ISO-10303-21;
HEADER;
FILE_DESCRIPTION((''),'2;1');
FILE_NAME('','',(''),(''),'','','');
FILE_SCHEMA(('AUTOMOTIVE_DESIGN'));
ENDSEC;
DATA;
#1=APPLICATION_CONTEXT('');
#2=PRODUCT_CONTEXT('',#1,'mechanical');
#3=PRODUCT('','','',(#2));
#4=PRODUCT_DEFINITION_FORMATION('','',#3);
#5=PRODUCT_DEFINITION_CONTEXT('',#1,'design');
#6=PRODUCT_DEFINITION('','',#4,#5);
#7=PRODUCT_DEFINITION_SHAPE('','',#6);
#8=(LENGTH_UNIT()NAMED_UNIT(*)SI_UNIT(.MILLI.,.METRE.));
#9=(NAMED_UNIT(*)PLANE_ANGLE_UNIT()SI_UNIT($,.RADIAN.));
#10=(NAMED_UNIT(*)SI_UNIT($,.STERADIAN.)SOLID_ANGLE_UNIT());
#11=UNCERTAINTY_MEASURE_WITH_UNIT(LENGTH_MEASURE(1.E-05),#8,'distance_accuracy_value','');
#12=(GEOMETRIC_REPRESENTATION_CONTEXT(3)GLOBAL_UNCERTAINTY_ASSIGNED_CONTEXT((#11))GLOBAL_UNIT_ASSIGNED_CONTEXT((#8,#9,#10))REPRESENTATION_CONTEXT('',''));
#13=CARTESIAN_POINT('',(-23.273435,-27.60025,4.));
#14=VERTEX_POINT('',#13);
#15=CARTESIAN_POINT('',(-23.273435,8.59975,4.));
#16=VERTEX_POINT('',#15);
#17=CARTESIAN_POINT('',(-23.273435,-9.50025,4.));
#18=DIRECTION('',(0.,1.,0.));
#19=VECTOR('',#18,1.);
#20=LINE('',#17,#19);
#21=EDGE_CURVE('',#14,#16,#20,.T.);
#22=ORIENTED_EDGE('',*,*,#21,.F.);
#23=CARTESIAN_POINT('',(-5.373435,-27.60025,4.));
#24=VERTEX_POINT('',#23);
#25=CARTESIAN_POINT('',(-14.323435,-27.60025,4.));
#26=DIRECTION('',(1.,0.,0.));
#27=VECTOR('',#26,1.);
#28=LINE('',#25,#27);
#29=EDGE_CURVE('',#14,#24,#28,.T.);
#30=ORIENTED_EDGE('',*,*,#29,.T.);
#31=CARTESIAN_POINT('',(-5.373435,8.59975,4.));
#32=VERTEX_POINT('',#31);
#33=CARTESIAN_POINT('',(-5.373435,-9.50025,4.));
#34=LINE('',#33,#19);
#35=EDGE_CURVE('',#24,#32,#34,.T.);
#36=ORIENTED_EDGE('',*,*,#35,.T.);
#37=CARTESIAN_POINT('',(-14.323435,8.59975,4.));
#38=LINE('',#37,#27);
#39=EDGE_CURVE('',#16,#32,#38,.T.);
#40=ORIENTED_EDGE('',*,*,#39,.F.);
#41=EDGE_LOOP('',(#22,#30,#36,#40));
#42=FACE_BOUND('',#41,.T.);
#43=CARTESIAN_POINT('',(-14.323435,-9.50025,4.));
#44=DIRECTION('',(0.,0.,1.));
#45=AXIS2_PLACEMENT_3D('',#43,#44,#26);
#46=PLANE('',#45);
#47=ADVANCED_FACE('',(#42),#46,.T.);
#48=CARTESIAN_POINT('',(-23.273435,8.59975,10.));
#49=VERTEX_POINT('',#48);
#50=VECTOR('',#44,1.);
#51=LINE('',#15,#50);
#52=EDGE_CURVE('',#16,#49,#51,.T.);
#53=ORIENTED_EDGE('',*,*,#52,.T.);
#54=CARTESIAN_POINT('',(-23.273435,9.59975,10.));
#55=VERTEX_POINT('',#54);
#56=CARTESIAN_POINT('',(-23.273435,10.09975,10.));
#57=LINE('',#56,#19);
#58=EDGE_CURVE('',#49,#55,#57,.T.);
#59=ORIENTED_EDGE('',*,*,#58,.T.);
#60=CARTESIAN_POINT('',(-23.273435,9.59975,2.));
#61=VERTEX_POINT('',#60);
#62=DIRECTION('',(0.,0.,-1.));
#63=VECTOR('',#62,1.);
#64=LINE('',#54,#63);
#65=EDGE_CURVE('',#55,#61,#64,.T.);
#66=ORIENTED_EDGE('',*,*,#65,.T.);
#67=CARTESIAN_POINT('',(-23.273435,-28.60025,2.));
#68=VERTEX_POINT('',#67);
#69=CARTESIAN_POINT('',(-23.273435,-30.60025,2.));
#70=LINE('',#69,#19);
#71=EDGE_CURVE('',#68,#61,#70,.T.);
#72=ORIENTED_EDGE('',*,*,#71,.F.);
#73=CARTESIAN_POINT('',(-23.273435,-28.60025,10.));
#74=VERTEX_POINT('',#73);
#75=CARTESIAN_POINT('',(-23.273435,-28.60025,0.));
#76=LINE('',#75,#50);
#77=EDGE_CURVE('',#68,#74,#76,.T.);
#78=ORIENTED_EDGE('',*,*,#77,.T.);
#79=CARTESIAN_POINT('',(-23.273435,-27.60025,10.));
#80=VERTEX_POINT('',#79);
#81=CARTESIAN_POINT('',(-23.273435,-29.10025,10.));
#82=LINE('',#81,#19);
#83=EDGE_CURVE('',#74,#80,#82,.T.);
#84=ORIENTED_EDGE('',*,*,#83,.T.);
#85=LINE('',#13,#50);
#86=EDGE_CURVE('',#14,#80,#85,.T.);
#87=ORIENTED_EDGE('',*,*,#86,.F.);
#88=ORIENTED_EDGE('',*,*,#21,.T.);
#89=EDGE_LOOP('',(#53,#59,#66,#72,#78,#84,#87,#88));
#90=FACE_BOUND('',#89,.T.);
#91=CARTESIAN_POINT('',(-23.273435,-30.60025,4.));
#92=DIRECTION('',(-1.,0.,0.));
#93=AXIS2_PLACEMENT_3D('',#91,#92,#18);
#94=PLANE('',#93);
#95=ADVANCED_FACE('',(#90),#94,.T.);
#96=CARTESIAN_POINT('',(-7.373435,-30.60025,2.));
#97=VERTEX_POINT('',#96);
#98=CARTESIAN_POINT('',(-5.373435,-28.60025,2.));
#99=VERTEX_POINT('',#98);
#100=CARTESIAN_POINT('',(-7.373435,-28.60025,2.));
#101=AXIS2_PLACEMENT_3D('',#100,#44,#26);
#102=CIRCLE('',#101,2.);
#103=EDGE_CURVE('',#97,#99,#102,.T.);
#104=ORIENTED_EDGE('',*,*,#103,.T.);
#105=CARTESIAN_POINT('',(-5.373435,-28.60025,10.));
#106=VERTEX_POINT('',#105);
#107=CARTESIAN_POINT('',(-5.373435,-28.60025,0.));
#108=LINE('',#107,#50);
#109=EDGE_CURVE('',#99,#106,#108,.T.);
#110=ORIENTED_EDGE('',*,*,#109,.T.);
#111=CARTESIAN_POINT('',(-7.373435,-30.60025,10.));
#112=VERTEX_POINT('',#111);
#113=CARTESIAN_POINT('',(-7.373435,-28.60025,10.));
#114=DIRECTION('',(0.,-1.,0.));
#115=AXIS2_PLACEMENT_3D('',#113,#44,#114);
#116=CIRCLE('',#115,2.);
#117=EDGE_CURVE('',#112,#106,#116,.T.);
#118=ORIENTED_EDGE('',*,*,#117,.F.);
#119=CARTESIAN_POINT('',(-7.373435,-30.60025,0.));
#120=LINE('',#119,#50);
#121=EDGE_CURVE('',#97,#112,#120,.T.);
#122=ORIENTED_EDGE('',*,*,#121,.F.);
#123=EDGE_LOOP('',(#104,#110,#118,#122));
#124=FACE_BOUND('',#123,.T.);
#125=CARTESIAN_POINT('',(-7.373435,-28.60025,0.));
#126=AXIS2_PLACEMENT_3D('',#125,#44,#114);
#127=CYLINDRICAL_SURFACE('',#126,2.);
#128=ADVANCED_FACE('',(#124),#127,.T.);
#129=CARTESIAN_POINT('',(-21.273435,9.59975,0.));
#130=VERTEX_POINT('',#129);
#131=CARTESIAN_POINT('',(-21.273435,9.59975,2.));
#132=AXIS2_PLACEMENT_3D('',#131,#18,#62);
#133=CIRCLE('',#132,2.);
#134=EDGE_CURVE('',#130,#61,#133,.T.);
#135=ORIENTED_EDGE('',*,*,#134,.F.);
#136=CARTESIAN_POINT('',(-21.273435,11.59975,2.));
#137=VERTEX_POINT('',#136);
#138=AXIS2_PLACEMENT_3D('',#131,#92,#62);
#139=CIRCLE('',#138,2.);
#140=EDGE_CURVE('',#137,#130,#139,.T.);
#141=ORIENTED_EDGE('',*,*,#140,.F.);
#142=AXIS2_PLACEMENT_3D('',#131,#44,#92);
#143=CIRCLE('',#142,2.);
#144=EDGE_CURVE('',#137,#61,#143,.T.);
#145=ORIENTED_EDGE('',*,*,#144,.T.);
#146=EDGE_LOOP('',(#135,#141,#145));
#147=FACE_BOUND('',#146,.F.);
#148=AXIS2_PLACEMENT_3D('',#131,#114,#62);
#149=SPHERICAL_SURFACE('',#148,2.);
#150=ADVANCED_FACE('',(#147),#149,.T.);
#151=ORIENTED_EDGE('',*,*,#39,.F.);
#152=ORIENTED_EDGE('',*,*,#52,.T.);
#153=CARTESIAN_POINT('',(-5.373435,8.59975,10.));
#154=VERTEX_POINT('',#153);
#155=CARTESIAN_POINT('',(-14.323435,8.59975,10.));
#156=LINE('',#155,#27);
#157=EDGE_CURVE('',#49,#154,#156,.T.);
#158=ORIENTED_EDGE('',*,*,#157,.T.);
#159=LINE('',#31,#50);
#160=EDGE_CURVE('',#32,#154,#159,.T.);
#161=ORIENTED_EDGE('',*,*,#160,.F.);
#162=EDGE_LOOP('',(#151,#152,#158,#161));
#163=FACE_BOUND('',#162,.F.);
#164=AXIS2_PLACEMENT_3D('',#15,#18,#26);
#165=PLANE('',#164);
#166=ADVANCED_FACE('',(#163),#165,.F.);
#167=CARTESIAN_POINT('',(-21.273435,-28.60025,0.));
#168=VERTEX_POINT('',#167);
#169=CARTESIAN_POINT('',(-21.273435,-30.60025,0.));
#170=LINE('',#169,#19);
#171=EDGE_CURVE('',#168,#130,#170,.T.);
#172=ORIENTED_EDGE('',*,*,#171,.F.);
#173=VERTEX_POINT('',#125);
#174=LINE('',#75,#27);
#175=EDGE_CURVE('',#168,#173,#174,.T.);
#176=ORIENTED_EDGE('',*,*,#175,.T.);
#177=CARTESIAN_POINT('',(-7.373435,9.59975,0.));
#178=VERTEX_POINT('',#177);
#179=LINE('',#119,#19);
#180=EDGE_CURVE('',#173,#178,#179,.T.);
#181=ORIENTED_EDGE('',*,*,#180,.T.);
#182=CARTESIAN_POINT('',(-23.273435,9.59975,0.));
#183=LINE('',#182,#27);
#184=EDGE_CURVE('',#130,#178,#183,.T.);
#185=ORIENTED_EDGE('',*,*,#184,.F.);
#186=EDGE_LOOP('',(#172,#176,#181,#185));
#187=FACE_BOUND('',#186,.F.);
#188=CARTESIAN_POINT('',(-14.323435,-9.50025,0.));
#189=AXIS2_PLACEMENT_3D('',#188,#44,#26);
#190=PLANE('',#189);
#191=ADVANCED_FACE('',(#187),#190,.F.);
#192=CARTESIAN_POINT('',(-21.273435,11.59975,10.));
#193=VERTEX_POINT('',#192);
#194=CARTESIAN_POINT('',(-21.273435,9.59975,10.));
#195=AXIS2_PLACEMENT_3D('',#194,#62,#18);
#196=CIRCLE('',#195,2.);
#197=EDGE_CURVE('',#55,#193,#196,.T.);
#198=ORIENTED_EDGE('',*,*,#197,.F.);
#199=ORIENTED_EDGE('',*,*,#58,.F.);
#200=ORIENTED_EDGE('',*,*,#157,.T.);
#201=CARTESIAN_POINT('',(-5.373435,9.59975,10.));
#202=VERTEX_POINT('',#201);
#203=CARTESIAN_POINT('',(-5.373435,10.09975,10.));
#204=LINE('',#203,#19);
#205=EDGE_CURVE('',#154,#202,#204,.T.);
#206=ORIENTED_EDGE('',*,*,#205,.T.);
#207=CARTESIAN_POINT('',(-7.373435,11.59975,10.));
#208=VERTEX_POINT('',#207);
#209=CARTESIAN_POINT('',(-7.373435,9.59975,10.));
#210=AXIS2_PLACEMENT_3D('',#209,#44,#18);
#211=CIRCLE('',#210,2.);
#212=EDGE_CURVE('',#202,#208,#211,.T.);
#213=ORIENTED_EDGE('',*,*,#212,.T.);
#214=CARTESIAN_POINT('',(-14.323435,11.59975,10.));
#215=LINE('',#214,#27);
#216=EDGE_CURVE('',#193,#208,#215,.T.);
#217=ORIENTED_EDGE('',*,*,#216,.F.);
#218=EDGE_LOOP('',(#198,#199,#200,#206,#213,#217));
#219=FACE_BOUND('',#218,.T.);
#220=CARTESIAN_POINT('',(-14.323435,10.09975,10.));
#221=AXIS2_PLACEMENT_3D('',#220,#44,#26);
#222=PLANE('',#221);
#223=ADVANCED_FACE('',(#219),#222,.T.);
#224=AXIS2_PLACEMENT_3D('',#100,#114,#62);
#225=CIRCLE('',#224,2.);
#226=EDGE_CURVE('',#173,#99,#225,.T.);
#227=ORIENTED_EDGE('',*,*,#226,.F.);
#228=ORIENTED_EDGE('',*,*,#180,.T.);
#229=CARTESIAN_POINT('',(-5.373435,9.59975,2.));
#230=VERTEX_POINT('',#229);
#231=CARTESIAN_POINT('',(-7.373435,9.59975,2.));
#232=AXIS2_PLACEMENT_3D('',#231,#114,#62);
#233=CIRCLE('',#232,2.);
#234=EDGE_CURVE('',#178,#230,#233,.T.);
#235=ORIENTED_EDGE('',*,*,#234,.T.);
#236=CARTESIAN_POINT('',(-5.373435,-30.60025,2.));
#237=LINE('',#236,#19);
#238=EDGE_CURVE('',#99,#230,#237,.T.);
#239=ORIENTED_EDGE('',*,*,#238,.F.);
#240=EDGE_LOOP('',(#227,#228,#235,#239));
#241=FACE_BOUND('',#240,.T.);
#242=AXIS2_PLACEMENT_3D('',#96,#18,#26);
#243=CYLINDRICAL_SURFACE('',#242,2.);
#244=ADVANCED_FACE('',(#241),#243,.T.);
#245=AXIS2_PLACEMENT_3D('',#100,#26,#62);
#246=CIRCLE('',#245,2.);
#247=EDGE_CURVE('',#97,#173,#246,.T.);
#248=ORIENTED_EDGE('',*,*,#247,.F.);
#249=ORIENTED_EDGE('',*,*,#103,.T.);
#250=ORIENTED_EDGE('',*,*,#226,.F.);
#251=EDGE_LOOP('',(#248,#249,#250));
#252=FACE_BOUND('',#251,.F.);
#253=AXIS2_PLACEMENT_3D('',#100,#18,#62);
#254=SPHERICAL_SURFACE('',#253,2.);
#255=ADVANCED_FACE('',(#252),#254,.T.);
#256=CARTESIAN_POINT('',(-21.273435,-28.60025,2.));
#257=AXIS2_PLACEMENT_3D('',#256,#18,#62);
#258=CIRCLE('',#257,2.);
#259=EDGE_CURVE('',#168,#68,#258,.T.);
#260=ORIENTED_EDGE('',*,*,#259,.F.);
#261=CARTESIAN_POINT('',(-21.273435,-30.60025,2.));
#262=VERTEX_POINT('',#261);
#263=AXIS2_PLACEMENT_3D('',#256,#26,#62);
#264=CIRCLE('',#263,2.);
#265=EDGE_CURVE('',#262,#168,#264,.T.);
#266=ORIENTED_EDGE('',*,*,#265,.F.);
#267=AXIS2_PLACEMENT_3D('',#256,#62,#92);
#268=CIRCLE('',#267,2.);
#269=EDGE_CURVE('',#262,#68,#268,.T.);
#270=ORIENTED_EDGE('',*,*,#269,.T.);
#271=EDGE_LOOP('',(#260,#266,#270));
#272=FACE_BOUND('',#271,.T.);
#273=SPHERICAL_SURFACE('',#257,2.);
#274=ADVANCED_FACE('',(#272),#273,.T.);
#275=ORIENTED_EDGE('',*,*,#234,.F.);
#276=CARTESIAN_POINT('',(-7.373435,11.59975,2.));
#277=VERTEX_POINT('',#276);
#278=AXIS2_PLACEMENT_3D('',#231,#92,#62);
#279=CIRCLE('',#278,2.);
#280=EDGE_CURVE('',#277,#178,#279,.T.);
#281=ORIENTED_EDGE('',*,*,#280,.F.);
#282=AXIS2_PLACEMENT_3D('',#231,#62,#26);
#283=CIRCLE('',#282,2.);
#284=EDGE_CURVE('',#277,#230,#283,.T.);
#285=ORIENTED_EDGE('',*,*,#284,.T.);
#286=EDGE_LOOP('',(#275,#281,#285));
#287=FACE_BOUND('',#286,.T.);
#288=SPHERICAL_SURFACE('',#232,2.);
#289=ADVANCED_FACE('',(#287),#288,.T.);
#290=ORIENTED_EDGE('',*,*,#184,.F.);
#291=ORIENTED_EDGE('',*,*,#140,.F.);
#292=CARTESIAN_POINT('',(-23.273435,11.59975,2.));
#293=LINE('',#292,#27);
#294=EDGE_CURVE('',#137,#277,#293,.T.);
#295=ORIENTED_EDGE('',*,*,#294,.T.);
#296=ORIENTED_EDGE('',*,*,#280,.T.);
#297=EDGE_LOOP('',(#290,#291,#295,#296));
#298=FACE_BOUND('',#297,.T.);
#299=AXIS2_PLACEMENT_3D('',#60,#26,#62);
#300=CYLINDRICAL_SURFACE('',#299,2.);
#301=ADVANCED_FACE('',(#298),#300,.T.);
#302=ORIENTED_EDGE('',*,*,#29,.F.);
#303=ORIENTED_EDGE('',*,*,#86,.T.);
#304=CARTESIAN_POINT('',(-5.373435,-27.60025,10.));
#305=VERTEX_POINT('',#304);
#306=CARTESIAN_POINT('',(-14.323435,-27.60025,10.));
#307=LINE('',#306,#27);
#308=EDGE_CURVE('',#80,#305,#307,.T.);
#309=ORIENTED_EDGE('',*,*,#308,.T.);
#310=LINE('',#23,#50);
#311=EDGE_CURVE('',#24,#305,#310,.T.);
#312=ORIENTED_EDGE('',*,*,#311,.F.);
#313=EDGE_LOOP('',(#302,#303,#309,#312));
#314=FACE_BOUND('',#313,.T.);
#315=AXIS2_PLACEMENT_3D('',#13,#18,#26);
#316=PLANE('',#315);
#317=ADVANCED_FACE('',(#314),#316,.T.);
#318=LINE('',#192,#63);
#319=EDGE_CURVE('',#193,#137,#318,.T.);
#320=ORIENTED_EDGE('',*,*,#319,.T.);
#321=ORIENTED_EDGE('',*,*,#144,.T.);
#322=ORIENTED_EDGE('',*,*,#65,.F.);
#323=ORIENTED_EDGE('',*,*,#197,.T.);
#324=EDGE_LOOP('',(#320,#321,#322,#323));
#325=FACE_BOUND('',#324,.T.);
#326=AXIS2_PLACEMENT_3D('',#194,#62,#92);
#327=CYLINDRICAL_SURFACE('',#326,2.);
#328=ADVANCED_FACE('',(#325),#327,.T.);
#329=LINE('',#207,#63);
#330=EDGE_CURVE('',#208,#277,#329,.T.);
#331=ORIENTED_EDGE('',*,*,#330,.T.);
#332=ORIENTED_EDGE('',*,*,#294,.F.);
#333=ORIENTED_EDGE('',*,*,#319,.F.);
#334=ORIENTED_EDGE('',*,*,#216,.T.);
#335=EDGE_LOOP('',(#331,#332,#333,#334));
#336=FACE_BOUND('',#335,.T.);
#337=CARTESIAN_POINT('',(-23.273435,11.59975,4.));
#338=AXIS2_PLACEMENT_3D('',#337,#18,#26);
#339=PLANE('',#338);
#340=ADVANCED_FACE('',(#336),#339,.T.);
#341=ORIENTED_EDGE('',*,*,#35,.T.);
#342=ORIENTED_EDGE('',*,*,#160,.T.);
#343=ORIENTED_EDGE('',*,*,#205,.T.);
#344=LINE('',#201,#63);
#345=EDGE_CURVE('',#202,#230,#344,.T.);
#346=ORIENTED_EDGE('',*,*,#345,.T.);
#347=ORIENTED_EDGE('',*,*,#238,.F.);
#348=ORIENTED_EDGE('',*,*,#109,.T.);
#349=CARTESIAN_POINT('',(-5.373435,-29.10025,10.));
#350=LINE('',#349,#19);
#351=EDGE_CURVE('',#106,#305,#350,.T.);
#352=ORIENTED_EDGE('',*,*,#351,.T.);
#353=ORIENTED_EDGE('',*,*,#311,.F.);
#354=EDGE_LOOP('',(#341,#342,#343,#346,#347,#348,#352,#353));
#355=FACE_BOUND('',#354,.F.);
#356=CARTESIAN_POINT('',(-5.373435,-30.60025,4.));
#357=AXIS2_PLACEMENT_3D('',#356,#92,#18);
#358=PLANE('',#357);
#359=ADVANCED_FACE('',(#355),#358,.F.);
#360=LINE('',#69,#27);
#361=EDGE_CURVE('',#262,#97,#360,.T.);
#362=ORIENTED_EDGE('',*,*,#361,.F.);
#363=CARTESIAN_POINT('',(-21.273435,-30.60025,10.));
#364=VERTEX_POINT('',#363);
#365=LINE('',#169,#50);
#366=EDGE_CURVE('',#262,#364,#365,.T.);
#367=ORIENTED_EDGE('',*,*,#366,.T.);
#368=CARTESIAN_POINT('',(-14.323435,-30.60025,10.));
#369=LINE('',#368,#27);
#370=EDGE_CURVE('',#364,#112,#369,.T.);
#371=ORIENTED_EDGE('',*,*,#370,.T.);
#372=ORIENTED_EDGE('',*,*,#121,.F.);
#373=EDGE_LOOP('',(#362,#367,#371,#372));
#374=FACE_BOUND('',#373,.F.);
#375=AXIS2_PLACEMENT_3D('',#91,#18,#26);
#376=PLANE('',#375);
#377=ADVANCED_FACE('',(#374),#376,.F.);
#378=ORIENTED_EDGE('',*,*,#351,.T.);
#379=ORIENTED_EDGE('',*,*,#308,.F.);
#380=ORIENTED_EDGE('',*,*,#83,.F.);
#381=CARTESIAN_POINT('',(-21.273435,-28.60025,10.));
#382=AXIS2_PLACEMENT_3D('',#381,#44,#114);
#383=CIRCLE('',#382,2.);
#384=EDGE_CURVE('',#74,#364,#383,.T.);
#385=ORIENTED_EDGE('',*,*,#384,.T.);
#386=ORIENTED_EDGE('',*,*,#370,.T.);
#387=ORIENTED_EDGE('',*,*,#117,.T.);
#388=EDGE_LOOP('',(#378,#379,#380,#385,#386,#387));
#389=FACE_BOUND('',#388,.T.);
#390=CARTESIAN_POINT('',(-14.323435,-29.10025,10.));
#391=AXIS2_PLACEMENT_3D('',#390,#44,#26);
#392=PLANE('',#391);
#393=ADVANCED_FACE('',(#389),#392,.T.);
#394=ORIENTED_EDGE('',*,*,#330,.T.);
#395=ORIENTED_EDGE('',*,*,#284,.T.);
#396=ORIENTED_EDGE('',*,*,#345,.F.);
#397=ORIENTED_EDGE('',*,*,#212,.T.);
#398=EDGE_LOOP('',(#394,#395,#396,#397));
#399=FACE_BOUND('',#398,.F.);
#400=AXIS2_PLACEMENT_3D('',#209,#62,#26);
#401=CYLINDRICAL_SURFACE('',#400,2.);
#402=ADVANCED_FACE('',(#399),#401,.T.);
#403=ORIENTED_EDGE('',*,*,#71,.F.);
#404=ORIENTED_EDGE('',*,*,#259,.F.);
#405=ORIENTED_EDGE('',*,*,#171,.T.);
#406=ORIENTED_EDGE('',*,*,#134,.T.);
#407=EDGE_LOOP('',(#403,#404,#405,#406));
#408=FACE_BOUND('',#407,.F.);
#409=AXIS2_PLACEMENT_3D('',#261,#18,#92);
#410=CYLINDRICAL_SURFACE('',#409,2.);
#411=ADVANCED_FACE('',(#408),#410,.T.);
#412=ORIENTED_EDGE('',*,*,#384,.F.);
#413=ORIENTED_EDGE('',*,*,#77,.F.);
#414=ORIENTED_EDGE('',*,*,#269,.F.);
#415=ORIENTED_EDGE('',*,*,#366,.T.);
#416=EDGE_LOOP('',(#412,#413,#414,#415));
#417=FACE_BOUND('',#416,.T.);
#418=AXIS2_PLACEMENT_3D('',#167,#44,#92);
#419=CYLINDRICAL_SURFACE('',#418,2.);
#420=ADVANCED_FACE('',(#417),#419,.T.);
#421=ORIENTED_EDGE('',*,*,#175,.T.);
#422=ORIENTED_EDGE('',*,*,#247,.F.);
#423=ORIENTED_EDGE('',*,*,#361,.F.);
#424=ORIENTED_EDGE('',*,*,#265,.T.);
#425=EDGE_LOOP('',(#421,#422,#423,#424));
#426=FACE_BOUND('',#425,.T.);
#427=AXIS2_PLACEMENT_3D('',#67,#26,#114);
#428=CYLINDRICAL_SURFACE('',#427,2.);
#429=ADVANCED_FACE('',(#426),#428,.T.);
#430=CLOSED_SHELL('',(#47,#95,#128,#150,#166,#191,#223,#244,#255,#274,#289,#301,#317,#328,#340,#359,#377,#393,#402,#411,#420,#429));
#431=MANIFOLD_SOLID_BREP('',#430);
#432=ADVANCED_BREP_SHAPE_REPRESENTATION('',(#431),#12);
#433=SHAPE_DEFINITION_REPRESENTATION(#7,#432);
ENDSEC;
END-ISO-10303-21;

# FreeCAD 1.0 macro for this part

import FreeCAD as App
import Part
import Sketcher
Q = App.Units.Quantity


def edges_at(feature, points):
    """Names of the edges that pass closest to the given points."""
    edges = feature.Shape.Edges
    near = lambda p: min(range(len(edges)), key=lambda i: edges[i].distToShape(Part.Vertex(*p))[0])
    return sorted({f"Edge{near(p) + 1}" for p in points})


def add_polygon(sketch, points):
    """Adds a closed chain of lines whose ends are joined by coincident constraints."""
    first, n = sketch.GeometryCount, len(points)
    for a, b in zip(points, points[1:] + points[:1]):
        sketch.addGeometry(Part.LineSegment(App.Vector(*a, 0), App.Vector(*b, 0)), False)
    for i in range(n):
        sketch.addConstraint(Sketcher.Constraint("Coincident", first + i, 2, first + (i + 1) % n, 1))

doc = App.newDocument("Part")
body = doc.addObject("PartDesign::Body", "Body")

# Sketch on XY plane
sketch1 = doc.addObject("Sketcher::SketchObject", "Sketch")
body.addObject(sketch1)
sketch1.AttachmentSupport = (doc.XY_Plane, [""])
sketch1.MapMode = "FlatFace"
add_polygon(sketch1, [(-23.273435, 11.59975), (-23.273435, -30.60025), (-5.373435, -30.60025), (-5.373435, 11.59975)])  # lines 0-3
sketch1.addConstraint(Sketcher.Constraint("Vertical", 0))
sketch1.addConstraint(Sketcher.Constraint("Horizontal", 1))
sketch1.addConstraint(Sketcher.Constraint("Vertical", 2))
sketch1.addConstraint(Sketcher.Constraint("Horizontal", 3))
sketch1.addConstraint(Sketcher.Constraint("DistanceX", 1, 1, 1, 2, Q("17.9 mm")))
sketch1.addConstraint(Sketcher.Constraint("DistanceY", 0, 2, 0, 1, Q("42.2 mm")))
sketch1.addConstraint(Sketcher.Constraint("DistanceY", 0, 2, -1, 1, Q("30.60025 mm")))
sketch1.addConstraint(Sketcher.Constraint("DistanceX", 0, 2, -1, 1, Q("23.273435 mm")))
pad1 = doc.addObject("PartDesign::Pad", "Pad")
body.addObject(pad1)
pad1.Profile = sketch1
pad1.Length = 4

# Sketch on XY plane
sketch2 = doc.addObject("Sketcher::SketchObject", "Sketch001")
body.addObject(sketch2)
sketch2.AttachmentSupport = (doc.XY_Plane, [""])
sketch2.MapMode = "FlatFace"
sketch2.AttachmentOffset = App.Placement(App.Vector(0, 0, 4), App.Rotation())
add_polygon(sketch2, [(-23.273435, 11.59975), (-23.273435, 8.59975), (-5.373435, 8.59975), (-5.373435, 11.59975)])  # lines 0-3
sketch2.addConstraint(Sketcher.Constraint("Vertical", 0))
sketch2.addConstraint(Sketcher.Constraint("Horizontal", 1))
sketch2.addConstraint(Sketcher.Constraint("Vertical", 2))
sketch2.addConstraint(Sketcher.Constraint("Horizontal", 3))
sketch2.addConstraint(Sketcher.Constraint("DistanceY", 0, 2, 0, 1, Q("3 mm")))
sketch2.addConstraint(Sketcher.Constraint("DistanceX", 1, 1, 1, 2, Q("17.9 mm")))
sketch2.addConstraint(Sketcher.Constraint("DistanceY", -1, 1, 0, 2, Q("8.59975 mm")))
sketch2.addConstraint(Sketcher.Constraint("DistanceX", 0, 2, -1, 1, Q("23.273435 mm")))
pad2 = doc.addObject("PartDesign::Pad", "Pad001")
body.addObject(pad2)
pad2.Profile = sketch2
pad2.Length = 6

# Sketch on XY plane
sketch3 = doc.addObject("Sketcher::SketchObject", "Sketch002")
body.addObject(sketch3)
sketch3.AttachmentSupport = (doc.XY_Plane, [""])
sketch3.MapMode = "FlatFace"
sketch3.AttachmentOffset = App.Placement(App.Vector(0, 0, 4), App.Rotation())
add_polygon(sketch3, [(-23.273435, -27.60025), (-23.273435, -30.60025), (-5.373435, -30.60025), (-5.373435, -27.60025)])  # lines 0-3
sketch3.addConstraint(Sketcher.Constraint("Vertical", 0))
sketch3.addConstraint(Sketcher.Constraint("Horizontal", 1))
sketch3.addConstraint(Sketcher.Constraint("Vertical", 2))
sketch3.addConstraint(Sketcher.Constraint("Horizontal", 3))
sketch3.addConstraint(Sketcher.Constraint("DistanceY", 0, 2, 0, 1, Q("3 mm")))
sketch3.addConstraint(Sketcher.Constraint("DistanceX", 1, 1, 1, 2, Q("17.9 mm")))
sketch3.addConstraint(Sketcher.Constraint("DistanceY", 0, 2, -1, 1, Q("30.60025 mm")))
sketch3.addConstraint(Sketcher.Constraint("DistanceX", 0, 2, -1, 1, Q("23.273435 mm")))
pad3 = doc.addObject("PartDesign::Pad", "Pad002")
body.addObject(pad3)
pad3.Profile = sketch3
pad3.Length = 6
doc.recompute()

fillet = doc.addObject("PartDesign::Fillet", "Fillet")
body.addObject(fillet)
fillet.Base = (pad3, edges_at(pad3, [
    (-23.273, -9.5, 0),
    (-5.373, -9.5, 0),
    (-14.323, 11.6, 0),
    (-14.323, -30.6, 0),
    (-5.373, 11.6, 5),
    (-23.273, 11.6, 5),
    (-5.373, -30.6, 5),
    (-23.273, -30.6, 5),
]))
fillet.Radius = 2

doc.recompute()
